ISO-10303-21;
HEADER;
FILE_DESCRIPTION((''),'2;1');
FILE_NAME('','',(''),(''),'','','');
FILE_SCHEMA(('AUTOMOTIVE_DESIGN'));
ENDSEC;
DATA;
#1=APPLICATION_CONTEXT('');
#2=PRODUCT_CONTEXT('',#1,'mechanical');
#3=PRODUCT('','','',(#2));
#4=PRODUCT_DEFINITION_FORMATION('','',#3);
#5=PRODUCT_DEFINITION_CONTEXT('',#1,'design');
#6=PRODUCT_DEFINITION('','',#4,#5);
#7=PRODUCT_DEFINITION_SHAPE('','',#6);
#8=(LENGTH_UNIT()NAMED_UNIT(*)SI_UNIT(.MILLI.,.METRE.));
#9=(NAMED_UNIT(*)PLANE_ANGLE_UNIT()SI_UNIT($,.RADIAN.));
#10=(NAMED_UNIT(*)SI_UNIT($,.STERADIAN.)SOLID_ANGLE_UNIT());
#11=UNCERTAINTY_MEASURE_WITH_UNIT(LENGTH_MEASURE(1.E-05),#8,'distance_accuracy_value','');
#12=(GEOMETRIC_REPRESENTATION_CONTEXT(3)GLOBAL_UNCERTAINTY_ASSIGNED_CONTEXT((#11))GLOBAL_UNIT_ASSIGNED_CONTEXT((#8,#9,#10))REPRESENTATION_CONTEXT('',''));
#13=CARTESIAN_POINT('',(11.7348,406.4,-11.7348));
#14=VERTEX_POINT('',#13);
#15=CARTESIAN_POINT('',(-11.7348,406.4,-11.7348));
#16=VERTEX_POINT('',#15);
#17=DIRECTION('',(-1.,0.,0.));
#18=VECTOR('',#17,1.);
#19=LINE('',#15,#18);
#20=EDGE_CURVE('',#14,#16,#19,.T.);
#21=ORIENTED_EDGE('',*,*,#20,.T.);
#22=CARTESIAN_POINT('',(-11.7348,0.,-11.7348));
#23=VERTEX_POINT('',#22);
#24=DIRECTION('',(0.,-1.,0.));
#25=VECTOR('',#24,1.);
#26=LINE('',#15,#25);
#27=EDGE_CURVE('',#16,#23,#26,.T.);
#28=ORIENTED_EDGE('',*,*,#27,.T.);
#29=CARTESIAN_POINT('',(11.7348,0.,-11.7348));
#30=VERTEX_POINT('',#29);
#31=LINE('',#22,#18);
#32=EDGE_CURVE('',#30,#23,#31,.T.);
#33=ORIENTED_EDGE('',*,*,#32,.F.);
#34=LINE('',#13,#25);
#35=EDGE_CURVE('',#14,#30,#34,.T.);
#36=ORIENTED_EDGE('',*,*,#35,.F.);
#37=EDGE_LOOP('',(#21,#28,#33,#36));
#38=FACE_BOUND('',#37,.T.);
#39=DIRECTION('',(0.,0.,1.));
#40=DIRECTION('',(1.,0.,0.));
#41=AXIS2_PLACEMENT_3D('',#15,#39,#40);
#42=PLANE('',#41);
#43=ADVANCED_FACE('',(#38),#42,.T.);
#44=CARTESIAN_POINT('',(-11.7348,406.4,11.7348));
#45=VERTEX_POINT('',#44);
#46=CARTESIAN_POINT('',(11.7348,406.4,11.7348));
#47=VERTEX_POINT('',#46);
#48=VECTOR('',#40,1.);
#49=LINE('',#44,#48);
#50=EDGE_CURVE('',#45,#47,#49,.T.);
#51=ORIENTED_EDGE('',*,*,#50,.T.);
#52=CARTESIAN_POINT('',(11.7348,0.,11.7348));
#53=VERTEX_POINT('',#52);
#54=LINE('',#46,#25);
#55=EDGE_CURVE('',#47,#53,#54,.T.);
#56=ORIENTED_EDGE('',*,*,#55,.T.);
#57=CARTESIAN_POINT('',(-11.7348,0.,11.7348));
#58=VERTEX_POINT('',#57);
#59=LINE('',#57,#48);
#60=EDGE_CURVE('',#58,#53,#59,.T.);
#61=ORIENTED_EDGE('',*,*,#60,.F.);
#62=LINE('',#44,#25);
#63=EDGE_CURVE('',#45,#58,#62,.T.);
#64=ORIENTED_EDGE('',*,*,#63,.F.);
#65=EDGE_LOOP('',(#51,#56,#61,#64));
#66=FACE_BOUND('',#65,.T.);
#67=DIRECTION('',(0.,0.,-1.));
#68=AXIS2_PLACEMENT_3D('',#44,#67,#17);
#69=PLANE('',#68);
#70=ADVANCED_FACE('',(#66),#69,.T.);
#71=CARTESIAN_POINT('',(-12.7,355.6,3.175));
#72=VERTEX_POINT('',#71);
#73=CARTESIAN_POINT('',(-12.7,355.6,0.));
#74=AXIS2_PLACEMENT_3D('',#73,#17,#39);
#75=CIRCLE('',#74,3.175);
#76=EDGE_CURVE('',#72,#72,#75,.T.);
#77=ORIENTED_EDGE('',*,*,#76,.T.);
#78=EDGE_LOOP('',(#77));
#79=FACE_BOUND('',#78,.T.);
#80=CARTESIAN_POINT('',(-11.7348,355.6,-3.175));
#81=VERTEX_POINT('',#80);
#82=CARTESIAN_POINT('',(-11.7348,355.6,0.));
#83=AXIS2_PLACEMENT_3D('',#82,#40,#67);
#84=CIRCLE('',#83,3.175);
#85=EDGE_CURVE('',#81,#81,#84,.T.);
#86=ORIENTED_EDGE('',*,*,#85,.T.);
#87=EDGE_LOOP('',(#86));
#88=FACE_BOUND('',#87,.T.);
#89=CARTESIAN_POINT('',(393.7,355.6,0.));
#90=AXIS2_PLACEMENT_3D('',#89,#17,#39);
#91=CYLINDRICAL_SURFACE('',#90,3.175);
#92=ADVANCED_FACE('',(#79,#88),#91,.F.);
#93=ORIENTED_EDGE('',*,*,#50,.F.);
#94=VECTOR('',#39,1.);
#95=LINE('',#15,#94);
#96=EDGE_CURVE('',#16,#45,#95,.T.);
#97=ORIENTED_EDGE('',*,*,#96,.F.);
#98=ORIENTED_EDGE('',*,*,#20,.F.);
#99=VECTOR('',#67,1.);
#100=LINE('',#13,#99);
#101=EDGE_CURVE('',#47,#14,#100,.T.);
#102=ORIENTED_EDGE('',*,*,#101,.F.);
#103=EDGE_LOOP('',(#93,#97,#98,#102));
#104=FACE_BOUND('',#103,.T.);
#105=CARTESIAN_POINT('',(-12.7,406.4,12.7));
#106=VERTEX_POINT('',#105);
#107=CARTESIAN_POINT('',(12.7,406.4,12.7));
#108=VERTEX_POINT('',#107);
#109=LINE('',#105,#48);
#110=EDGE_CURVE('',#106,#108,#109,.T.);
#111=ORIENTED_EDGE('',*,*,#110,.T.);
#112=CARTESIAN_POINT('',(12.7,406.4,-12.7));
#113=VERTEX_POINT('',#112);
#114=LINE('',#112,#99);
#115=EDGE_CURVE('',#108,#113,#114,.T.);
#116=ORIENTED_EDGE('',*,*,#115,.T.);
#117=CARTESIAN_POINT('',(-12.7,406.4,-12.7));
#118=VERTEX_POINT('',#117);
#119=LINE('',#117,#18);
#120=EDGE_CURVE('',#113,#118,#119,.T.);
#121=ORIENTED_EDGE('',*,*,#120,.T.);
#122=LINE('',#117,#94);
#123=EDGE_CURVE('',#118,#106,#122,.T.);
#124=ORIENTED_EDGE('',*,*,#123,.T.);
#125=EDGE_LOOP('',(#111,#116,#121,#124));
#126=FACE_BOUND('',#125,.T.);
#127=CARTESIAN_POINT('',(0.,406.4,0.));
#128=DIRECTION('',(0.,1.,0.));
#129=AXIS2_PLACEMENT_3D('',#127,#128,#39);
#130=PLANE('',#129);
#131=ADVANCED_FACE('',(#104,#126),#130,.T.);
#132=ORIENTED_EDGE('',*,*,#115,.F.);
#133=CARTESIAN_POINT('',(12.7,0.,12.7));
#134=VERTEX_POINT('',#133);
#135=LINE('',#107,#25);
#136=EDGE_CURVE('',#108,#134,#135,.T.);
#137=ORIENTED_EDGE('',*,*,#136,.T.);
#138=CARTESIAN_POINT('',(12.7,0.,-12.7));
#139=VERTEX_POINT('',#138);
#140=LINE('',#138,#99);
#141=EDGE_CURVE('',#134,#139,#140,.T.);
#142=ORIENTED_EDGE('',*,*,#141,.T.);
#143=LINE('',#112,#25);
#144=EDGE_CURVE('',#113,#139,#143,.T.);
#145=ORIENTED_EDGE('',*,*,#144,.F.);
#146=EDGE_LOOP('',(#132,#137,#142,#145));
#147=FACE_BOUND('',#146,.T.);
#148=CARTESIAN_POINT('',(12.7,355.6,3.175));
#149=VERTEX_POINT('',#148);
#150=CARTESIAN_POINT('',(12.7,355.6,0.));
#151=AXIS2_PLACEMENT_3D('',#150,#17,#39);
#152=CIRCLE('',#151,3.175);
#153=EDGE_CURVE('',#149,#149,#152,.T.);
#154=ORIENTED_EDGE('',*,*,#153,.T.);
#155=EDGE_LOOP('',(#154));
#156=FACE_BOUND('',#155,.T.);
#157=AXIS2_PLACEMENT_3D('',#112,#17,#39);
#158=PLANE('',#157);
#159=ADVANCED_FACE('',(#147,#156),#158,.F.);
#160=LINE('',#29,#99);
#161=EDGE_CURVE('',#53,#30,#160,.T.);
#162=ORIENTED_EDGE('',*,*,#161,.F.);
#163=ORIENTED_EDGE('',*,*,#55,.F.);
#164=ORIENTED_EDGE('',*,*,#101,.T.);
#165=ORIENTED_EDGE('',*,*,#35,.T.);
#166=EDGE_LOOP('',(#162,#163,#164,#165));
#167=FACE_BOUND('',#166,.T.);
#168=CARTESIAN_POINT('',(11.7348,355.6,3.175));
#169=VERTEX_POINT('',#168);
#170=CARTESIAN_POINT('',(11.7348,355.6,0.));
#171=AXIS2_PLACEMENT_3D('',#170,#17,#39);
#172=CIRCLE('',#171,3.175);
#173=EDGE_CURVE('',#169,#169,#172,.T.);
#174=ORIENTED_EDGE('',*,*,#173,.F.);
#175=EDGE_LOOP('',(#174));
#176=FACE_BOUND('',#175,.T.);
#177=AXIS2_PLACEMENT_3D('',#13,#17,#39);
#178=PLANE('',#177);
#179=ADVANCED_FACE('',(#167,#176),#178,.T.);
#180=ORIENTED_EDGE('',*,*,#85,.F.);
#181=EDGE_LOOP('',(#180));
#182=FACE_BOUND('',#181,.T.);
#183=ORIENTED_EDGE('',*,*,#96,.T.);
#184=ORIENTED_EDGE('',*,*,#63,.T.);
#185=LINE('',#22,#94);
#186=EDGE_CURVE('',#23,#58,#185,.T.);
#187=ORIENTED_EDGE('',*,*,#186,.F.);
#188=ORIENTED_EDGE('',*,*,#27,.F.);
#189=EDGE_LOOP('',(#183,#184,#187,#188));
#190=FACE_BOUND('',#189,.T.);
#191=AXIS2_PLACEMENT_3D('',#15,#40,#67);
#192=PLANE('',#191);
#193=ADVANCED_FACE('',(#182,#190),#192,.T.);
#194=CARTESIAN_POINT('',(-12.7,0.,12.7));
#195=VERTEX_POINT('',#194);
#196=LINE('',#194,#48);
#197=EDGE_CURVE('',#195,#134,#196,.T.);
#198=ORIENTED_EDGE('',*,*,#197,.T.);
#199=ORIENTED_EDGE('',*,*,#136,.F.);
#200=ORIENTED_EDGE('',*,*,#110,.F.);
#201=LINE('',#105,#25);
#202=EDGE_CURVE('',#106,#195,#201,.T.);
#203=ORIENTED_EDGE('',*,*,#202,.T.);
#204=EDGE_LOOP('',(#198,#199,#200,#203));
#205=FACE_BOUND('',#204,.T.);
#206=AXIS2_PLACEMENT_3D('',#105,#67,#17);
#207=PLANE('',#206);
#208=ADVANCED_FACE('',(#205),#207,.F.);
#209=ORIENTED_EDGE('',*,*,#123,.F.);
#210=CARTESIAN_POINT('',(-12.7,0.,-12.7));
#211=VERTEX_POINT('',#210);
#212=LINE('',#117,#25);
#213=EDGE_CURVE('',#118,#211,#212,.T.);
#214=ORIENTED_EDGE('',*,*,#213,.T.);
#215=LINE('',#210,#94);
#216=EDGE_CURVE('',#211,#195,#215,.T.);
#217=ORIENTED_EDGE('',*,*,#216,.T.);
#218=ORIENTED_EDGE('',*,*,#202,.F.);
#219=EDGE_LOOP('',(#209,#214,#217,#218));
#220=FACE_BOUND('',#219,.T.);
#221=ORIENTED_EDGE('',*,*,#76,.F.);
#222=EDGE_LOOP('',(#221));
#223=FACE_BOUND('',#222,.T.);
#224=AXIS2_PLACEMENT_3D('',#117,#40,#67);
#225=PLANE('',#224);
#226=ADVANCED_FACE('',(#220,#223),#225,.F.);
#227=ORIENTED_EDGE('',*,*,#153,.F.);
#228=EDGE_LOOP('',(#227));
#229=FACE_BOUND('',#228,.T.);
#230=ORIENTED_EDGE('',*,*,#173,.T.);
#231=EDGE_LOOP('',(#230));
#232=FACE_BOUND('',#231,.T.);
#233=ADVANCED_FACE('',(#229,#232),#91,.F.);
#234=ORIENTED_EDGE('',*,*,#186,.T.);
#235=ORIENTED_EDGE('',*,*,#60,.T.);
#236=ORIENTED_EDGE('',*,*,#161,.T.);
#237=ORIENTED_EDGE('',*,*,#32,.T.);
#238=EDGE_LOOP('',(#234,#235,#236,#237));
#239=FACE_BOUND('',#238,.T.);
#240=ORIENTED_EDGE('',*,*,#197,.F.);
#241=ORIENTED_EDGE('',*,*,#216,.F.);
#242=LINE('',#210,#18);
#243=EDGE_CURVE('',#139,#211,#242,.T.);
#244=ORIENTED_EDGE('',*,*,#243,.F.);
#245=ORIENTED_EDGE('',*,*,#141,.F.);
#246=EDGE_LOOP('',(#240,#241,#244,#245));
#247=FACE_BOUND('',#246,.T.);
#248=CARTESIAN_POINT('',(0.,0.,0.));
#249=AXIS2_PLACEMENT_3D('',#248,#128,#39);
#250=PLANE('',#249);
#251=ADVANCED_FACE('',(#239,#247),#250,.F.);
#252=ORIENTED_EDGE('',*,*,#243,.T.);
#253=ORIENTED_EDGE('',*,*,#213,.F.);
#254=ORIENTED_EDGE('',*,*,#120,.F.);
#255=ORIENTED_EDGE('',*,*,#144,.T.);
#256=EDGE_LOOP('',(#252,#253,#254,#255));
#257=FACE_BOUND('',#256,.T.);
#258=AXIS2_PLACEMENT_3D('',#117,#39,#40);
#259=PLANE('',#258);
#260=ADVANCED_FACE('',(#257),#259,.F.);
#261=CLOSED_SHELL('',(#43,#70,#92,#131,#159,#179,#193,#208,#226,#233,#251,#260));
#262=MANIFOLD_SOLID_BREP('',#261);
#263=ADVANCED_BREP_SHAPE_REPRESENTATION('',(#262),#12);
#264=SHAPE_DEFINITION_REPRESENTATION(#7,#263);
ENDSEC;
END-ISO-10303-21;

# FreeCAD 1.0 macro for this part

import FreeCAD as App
import Part
import Sketcher
from FreeCAD import Vector
Q = App.Units.Quantity

doc = App.newDocument("Part")
body = doc.addObject("PartDesign::Body", "Body")

# Sketch on XZ plane
sketch1 = doc.addObject("Sketcher::SketchObject", "Sketch")
body.addObject(sketch1)
sketch1.AttachmentSupport = (doc.XZ_Plane, [""])
sketch1.MapMode = "FlatFace"
sketch1.addGeometry([
    Part.LineSegment(Vector(-13, -13, 0), Vector(-13, 13, 0)),  # 0
    Part.LineSegment(Vector(-13, 13, 0), Vector(13, 13, 0)),  # 1
    Part.LineSegment(Vector(13, 13, 0), Vector(13, -13, 0)),  # 2
    Part.LineSegment(Vector(13, -13, 0), Vector(-13, -13, 0)),  # 3
    Part.LineSegment(Vector(12, 12, 0), Vector(-12, 12, 0)),  # 4
    Part.LineSegment(Vector(-12, 12, 0), Vector(-12, -12, 0)),  # 5
    Part.LineSegment(Vector(-12, -12, 0), Vector(12, -12, 0)),  # 6
    Part.LineSegment(Vector(12, -12, 0), Vector(12, 12, 0)),  # 7
], False)
sketch1.addConstraint([
    Sketcher.Constraint("Coincident", 0, 2, 1, 1),
    Sketcher.Constraint("Coincident", 1, 2, 2, 1),
    Sketcher.Constraint("Coincident", 2, 2, 3, 1),
    Sketcher.Constraint("Coincident", 3, 2, 0, 1),
    Sketcher.Constraint("Coincident", 4, 2, 5, 1),
    Sketcher.Constraint("Coincident", 5, 2, 6, 1),
    Sketcher.Constraint("Coincident", 6, 2, 7, 1),
    Sketcher.Constraint("Coincident", 7, 2, 4, 1),
    Sketcher.Constraint("Vertical", 0),
    Sketcher.Constraint("Horizontal", 1),
    Sketcher.Constraint("Vertical", 2),
    Sketcher.Constraint("Horizontal", 3),
    Sketcher.Constraint("Horizontal", 4),
    Sketcher.Constraint("Vertical", 5),
    Sketcher.Constraint("Horizontal", 6),
    Sketcher.Constraint("Vertical", 7),
    Sketcher.Constraint("Symmetric", 0, 2, 2, 2, -1, 1),
    Sketcher.Constraint("Symmetric", 4, 2, 6, 2, -1, 1),
    Sketcher.Constraint("Equal", 3, 0),
    Sketcher.Constraint("Equal", 6, 5),
    Sketcher.Constraint("DistanceX", 1, 1, 1, 2, Q("1 in")),
    Sketcher.Constraint("DistanceX", 4, 2, 4, 1, Q("0.924 in")),
])
pad1 = doc.addObject("PartDesign::Pad", "Pad")
body.addObject(pad1)
pad1.Profile = sketch1
pad1.Length = Q("16 in")
pad1.Reversed = True

# Sketch on YZ plane
sketch2 = doc.addObject("Sketcher::SketchObject", "Sketch001")
body.addObject(sketch2)
sketch2.AttachmentSupport = (doc.YZ_Plane, [""])
sketch2.MapMode = "FlatFace"
sketch2.AttachmentOffset = App.Placement(Vector(0, 0, -0.5 * 25.4), App.Rotation())
sketch2.addGeometry(Part.Circle(Vector(355.6, 0, 0), Vector(0, 0, 1), 3.2), False)
sketch2.addConstraint([
    Sketcher.Constraint("PointOnObject", 0, 3, -1),
    Sketcher.Constraint("Diameter", 0, Q("0.25 in")),
    Sketcher.Constraint("DistanceX", -1, 1, 0, 3, Q("14 in")),
])
pocket1 = doc.addObject("PartDesign::Pocket", "Pocket")
body.addObject(pocket1)
pocket1.Profile = sketch2
pocket1.Length = Q("16 in")
pocket1.Reversed = True

doc.recompute()
